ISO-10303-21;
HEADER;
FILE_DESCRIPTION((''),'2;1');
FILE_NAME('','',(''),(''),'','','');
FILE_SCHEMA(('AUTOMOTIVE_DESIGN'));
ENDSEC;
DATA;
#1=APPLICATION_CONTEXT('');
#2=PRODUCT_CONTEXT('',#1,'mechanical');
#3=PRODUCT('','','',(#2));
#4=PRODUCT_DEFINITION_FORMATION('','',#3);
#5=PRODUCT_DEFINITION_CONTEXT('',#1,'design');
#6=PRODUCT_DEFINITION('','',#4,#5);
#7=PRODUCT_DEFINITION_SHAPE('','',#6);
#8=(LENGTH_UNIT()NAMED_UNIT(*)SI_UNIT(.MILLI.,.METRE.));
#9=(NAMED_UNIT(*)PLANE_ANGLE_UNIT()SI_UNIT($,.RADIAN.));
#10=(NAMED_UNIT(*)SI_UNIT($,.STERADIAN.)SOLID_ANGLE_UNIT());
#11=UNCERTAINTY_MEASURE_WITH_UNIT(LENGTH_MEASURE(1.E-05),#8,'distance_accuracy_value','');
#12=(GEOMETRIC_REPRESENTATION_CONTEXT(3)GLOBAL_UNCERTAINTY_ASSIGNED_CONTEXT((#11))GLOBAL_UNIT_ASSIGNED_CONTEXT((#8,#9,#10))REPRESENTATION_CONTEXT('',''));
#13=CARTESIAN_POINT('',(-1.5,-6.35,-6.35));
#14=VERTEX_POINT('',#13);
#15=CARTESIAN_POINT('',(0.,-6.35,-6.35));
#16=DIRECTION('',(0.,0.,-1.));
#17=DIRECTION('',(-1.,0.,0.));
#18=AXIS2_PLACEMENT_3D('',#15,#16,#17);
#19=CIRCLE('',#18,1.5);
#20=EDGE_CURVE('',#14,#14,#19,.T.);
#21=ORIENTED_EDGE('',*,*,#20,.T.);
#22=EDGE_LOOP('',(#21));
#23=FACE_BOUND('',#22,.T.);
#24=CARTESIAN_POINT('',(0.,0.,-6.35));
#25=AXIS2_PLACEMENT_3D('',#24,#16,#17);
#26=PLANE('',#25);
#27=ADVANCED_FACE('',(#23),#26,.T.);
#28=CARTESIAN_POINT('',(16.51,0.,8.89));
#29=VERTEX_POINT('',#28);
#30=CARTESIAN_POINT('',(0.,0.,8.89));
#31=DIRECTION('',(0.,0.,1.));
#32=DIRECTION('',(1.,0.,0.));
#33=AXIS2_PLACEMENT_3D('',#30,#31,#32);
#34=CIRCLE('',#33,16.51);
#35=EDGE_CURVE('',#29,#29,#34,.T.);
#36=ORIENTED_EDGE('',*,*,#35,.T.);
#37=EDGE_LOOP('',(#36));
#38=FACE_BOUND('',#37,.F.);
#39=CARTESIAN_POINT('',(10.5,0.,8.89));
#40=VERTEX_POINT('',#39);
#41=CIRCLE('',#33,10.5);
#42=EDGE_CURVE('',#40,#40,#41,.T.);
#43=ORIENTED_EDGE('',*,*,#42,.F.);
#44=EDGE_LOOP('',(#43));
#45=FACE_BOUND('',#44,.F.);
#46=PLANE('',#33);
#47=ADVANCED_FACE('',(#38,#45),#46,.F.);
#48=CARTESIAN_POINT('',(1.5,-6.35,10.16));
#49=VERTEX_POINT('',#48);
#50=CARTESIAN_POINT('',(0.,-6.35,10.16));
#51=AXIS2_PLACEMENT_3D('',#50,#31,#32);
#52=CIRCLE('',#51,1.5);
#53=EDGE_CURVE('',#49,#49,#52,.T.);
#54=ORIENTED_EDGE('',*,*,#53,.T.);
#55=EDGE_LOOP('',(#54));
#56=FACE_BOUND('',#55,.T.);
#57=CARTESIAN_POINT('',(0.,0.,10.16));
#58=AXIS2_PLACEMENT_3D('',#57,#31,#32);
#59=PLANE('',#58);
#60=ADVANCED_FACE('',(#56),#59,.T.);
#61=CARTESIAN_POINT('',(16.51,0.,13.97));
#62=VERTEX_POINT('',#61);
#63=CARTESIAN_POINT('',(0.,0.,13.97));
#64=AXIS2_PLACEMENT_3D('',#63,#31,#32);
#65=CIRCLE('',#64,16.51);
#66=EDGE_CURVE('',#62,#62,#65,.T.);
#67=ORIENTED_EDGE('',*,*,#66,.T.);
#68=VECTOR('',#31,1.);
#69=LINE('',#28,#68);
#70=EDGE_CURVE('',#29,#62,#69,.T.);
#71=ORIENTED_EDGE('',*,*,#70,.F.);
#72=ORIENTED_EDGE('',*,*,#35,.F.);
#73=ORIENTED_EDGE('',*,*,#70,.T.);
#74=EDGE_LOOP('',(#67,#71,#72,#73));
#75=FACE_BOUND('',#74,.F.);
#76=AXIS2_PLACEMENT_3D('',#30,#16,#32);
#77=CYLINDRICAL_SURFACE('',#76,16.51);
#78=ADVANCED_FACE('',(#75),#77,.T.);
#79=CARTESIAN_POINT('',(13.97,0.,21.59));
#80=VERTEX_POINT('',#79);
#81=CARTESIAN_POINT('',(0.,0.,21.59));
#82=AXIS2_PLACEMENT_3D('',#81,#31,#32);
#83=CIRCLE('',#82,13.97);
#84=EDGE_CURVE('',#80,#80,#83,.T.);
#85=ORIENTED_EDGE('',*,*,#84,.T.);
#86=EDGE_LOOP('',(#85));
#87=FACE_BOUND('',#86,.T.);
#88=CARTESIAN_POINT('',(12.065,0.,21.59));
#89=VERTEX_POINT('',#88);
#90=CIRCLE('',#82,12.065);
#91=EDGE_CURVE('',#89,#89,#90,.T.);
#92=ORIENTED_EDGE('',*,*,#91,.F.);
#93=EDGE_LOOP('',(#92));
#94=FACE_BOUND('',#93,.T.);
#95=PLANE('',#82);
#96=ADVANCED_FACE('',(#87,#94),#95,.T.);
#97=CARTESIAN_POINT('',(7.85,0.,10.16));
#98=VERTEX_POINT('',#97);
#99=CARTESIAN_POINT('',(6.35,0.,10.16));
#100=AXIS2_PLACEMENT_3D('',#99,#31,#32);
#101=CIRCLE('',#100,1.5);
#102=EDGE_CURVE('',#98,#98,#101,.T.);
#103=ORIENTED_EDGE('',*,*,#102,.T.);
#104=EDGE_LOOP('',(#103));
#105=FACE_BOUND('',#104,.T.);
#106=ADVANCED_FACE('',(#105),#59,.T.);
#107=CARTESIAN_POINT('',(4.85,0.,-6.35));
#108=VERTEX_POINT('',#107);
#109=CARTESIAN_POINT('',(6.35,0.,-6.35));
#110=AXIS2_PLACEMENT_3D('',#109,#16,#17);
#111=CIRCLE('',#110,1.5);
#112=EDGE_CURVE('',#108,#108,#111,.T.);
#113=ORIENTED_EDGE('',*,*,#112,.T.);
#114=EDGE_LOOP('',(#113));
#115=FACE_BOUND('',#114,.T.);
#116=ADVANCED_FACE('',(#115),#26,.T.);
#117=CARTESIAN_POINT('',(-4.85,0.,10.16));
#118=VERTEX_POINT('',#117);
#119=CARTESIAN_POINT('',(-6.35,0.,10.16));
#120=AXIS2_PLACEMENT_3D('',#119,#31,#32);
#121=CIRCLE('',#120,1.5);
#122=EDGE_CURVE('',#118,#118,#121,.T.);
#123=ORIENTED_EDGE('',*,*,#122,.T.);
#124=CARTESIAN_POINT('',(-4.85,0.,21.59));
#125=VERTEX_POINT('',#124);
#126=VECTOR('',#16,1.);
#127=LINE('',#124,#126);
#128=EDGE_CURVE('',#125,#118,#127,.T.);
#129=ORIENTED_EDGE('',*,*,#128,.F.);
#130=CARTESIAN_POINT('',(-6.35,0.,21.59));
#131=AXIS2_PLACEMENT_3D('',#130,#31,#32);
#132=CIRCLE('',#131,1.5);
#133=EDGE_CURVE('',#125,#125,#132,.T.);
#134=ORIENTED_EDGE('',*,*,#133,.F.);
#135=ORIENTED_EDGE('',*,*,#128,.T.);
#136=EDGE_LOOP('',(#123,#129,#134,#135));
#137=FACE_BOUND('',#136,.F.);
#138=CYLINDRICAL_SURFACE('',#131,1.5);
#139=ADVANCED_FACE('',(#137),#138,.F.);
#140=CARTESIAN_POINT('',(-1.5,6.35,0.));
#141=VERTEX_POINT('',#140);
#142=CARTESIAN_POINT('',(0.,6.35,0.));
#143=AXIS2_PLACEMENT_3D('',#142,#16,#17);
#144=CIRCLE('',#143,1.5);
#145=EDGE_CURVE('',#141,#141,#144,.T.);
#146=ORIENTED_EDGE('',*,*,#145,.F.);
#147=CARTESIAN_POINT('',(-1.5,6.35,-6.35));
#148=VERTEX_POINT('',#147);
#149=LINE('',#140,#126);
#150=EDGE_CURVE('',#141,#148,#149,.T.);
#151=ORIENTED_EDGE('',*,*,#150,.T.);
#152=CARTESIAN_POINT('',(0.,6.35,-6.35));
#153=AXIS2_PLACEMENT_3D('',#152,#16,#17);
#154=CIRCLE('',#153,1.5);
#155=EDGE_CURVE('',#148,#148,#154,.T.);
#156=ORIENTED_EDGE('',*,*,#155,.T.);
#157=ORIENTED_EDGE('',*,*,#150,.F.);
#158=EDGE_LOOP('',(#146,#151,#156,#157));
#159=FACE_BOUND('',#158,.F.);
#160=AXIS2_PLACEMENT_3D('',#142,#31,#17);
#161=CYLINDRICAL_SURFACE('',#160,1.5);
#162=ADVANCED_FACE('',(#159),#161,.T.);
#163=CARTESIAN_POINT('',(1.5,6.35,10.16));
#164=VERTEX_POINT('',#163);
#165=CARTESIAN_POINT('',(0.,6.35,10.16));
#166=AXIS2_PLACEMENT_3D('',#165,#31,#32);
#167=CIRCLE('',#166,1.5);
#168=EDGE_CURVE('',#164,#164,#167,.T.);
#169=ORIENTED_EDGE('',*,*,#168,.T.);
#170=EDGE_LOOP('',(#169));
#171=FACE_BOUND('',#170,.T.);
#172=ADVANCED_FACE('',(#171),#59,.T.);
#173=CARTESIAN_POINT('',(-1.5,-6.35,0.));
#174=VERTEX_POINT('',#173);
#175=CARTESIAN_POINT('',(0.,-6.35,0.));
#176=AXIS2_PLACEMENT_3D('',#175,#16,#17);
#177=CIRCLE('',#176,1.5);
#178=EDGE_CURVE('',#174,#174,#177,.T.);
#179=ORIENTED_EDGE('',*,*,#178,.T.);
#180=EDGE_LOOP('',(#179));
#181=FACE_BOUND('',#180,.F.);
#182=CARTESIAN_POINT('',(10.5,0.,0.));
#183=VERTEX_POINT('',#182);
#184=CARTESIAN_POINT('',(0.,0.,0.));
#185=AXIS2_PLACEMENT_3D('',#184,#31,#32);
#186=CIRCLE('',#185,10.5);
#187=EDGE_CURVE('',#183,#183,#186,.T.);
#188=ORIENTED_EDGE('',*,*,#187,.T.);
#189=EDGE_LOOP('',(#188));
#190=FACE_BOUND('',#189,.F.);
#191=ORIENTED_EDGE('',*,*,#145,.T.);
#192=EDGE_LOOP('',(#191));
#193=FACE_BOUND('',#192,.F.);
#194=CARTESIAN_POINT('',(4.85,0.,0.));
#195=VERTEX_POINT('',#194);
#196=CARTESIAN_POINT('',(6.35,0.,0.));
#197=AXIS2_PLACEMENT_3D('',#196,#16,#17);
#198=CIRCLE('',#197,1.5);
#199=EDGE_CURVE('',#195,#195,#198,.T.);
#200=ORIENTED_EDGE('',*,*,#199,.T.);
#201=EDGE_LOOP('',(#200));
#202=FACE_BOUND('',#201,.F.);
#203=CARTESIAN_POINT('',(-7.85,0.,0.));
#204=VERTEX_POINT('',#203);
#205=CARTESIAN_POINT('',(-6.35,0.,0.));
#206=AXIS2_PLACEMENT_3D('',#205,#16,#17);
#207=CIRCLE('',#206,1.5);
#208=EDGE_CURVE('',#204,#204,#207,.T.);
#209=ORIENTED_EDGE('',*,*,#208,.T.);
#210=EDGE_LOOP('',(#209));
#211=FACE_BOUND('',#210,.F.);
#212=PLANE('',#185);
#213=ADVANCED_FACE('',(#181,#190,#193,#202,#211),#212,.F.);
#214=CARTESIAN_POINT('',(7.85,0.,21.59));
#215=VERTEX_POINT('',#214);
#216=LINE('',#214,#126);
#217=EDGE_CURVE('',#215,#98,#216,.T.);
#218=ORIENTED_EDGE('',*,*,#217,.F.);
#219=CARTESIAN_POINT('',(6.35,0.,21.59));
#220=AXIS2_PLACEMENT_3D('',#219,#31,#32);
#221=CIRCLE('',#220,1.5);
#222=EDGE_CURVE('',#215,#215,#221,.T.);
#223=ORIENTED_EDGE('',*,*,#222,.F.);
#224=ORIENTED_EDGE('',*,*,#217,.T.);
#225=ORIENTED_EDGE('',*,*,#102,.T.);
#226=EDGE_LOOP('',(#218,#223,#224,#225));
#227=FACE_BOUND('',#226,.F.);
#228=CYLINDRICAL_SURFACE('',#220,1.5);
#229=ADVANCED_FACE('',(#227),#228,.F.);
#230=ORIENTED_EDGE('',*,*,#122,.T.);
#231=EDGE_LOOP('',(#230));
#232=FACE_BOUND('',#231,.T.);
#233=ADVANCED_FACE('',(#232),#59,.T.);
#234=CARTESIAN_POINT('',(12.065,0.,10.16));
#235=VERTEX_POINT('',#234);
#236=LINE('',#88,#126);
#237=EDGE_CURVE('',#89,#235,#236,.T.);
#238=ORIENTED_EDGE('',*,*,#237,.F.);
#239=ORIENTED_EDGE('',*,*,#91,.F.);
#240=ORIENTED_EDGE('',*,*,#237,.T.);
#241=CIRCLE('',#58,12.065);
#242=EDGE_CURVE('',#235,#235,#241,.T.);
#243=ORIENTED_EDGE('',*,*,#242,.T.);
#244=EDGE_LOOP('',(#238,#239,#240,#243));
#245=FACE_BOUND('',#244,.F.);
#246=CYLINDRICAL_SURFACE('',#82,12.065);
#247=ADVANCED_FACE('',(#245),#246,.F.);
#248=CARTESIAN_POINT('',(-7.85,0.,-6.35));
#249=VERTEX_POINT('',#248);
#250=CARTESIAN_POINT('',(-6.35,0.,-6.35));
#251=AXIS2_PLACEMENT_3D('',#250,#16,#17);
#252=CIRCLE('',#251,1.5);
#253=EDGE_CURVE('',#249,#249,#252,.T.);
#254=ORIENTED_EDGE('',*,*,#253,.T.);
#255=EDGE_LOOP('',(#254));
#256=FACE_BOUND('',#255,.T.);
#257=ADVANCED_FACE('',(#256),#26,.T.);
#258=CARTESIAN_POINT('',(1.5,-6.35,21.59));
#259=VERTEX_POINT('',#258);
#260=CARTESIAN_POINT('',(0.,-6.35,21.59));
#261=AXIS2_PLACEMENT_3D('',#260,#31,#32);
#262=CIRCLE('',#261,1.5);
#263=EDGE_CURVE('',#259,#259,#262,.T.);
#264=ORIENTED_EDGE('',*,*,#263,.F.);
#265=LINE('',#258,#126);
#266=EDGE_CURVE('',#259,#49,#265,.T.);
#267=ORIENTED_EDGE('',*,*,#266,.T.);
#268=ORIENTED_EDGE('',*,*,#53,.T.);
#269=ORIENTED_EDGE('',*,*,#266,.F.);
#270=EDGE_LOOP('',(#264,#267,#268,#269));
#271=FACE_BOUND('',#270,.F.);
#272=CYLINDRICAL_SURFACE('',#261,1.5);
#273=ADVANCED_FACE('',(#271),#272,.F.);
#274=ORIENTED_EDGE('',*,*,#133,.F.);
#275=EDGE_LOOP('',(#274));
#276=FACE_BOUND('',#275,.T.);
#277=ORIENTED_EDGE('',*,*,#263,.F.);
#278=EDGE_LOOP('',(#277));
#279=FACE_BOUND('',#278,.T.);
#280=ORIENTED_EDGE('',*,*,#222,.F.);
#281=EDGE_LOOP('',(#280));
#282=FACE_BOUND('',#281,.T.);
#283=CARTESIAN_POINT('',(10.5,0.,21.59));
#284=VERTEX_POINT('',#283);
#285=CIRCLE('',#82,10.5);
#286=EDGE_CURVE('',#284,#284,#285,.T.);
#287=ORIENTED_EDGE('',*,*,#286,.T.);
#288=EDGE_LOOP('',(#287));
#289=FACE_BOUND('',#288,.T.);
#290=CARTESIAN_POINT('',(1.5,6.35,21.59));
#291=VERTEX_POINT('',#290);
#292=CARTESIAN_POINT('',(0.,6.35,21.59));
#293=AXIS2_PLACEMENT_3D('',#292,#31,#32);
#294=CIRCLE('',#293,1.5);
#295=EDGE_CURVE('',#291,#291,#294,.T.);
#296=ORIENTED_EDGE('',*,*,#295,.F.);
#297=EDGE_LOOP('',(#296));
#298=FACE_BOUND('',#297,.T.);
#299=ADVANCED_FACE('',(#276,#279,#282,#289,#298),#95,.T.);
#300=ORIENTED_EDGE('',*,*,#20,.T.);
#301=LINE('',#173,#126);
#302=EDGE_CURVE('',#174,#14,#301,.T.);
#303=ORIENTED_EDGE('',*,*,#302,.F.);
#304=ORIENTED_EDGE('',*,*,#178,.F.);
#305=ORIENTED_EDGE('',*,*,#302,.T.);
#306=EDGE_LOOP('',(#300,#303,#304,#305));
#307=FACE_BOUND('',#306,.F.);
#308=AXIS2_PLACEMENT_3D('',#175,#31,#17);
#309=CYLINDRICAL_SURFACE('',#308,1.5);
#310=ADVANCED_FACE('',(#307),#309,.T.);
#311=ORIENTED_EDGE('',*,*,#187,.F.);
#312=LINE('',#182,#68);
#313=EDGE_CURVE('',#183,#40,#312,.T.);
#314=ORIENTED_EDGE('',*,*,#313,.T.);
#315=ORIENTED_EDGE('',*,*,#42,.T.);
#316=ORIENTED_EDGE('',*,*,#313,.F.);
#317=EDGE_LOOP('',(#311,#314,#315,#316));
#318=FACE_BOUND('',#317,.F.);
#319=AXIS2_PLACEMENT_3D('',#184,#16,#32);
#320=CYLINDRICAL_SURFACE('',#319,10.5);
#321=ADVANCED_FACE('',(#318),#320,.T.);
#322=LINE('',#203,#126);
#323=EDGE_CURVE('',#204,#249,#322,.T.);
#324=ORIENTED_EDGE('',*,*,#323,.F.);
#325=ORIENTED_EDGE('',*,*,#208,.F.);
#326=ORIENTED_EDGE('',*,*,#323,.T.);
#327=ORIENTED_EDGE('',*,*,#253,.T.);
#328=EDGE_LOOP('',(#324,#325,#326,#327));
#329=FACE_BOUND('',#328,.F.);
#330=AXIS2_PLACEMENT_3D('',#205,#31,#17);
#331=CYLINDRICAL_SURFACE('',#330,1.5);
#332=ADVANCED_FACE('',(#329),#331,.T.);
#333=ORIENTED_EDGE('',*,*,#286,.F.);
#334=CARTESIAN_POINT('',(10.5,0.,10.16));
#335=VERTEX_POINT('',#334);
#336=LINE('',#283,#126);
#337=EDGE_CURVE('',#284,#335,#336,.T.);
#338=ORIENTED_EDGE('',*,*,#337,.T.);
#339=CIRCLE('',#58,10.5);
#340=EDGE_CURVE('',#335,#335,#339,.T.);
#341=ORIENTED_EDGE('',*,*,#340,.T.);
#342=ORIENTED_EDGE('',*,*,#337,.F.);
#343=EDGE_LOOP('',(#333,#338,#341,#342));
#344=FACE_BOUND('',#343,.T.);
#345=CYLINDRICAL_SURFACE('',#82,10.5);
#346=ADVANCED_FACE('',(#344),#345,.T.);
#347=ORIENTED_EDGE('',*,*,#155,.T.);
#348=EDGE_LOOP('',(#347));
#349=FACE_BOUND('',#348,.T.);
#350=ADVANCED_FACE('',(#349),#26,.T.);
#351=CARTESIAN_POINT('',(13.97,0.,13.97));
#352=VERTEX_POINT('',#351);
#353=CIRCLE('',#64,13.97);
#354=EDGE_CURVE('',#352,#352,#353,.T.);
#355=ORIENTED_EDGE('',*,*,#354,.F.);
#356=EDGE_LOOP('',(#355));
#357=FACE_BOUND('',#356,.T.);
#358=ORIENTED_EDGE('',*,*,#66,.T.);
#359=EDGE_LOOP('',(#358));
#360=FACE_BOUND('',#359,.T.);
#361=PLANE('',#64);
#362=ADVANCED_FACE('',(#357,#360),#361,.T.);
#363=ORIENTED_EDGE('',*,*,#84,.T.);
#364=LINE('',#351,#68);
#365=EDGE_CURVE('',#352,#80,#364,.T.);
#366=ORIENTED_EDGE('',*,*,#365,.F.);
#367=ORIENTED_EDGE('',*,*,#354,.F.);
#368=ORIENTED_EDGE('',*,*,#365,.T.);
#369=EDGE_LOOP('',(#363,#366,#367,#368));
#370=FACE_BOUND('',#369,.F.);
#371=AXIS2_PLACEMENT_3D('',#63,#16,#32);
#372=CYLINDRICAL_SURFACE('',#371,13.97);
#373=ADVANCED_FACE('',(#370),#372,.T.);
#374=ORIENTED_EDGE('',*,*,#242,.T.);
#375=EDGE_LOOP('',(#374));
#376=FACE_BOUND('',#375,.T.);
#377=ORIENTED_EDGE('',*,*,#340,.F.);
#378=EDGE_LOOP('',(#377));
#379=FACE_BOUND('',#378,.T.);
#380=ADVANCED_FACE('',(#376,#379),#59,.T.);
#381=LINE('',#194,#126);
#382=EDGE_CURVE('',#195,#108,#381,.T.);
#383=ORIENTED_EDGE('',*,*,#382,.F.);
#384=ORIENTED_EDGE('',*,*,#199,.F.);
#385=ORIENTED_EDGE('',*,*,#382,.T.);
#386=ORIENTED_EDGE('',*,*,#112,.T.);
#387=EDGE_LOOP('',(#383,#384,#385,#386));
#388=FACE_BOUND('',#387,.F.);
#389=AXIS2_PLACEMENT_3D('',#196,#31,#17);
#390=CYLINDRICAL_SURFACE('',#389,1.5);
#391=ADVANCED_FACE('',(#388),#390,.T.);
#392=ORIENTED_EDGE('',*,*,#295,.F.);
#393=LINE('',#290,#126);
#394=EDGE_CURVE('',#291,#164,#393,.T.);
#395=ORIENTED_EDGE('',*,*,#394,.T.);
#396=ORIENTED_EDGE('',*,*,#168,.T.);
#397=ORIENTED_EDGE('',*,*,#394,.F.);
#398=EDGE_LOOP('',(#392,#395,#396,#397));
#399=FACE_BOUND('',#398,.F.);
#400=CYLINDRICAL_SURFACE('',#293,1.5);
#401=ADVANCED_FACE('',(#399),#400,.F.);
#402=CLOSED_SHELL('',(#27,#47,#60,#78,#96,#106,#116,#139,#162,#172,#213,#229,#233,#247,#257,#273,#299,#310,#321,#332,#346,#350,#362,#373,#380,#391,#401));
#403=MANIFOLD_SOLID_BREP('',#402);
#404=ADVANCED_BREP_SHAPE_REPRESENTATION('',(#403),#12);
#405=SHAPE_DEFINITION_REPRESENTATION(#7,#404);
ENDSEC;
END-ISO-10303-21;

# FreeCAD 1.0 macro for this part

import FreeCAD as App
import Part
import Sketcher

V = App.Vector
Q = App.Units.Quantity

doc = App.newDocument("Part")
body = doc.addObject("PartDesign::Body", "Body")

sketch1 = body.newObject("Sketcher::SketchObject", "Sketch")
sketch1.AttachmentSupport = (doc.getObject("XY_Plane"), [""])
sketch1.MapMode = "FlatFace"
sketch1.addGeometry(Part.Circle(V(0, 0, 0), V(0, 0, 1), 10), False)
sketch1.addConstraint(Sketcher.Constraint("Coincident", 0, 3, -1, 1))
sketch1.addConstraint(Sketcher.Constraint("Diameter", 0, 21.0))
pad1 = body.newObject("PartDesign::Pad", "Pad")
pad1.Profile = sketch1
pad1.Length = Q("0.35 in")

sketch2 = body.newObject("Sketcher::SketchObject", "Sketch001")
sketch2.AttachmentSupport = (doc.getObject("XY_Plane"), [""])
sketch2.MapMode = "FlatFace"
sketch2.AttachmentOffset = App.Placement(V(0, 0, 0.35 * 25.4), App.Rotation())
sketch2.addGeometry(Part.Circle(V(0, 0, 0), V(0, 0, 1), 17), False)
sketch2.addConstraint(Sketcher.Constraint("Coincident", 0, 3, -1, 1))
sketch2.addConstraint(Sketcher.Constraint("Diameter", 0, Q("1.3 in")))
pad2 = body.newObject("PartDesign::Pad", "Pad001")
pad2.Profile = sketch2
pad2.Length = Q("0.2 in")

sketch3 = body.newObject("Sketcher::SketchObject", "Sketch002")
sketch3.AttachmentSupport = (doc.getObject("XY_Plane"), [""])
sketch3.MapMode = "FlatFace"
sketch3.AttachmentOffset = App.Placement(V(0, 0, 0.55 * 25.4), App.Rotation())
sketch3.addGeometry(Part.Circle(V(0, 0, 0), V(0, 0, 1), 14), False)
sketch3.addConstraint(Sketcher.Constraint("Coincident", 0, 3, -1, 1))
sketch3.addConstraint(Sketcher.Constraint("Diameter", 0, Q("1.1 in")))
pad3 = body.newObject("PartDesign::Pad", "Pad002")
pad3.Profile = sketch3
pad3.Length = Q("0.3 in")

sketch4 = body.newObject("Sketcher::SketchObject", "Sketch003")
sketch4.AttachmentSupport = (doc.getObject("XY_Plane"), [""])
sketch4.MapMode = "FlatFace"
sketch4.AttachmentOffset = App.Placement(V(0, 0, 0.85 * 25.4), App.Rotation())
sketch4.addGeometry(Part.Circle(V(0, 6.3, 0), V(0, 0, 1), 1.5), False)
sketch4.addGeometry(Part.Circle(V(-6.3, 0, 0), V(0, 0, 1), 1.5), False)
sketch4.addGeometry(Part.Circle(V(0, -6.3, 0), V(0, 0, 1), 1.5), False)
sketch4.addGeometry(Part.Circle(V(6.3, 0, 0), V(0, 0, 1), 1.5), False)
sketch4.addConstraint(Sketcher.Constraint("Equal", 0, 1))
sketch4.addConstraint(Sketcher.Constraint("Equal", 1, 2))
sketch4.addConstraint(Sketcher.Constraint("Equal", 2, 3))
sketch4.addConstraint(Sketcher.Constraint("Symmetric", 0, 3, 2, 3, -1, 1))
sketch4.addConstraint(Sketcher.Constraint("Symmetric", 1, 3, 3, 3, -1, 1))
sketch4.addConstraint(Sketcher.Constraint("PointOnObject", 0, 3, -2))
sketch4.addConstraint(Sketcher.Constraint("PointOnObject", 1, 3, -1))
sketch4.addConstraint(Sketcher.Constraint("Diameter", 0, Q("0.1181 in")))
sketch4.addConstraint(Sketcher.Constraint("DistanceY", 2, 3, 0, 3, Q("0.5 in")))
sketch4.addConstraint(Sketcher.Constraint("DistanceX", 1, 3, 3, 3, Q("0.5 in")))
pocket1 = body.newObject("PartDesign::Pocket", "Pocket")
pocket1.Profile = sketch4
pocket1.Length = Q("0.45 in")

sketch5 = body.newObject("Sketcher::SketchObject", "Sketch004")
sketch5.AttachmentSupport = (doc.getObject("XY_Plane"), [""])
sketch5.MapMode = "FlatFace"
sketch5.AttachmentOffset = App.Placement(V(0, 0, 0.85 * 25.4), App.Rotation())
sketch5.addGeometry(Part.Circle(V(0, 0, 0), V(0, 0, 1), 12), False)
sketch5.addGeometry(Part.Circle(V(0, 0, 0), V(0, 0, 1), 10), False)
sketch5.addConstraint(Sketcher.Constraint("Coincident", 0, 3, -1, 1))
sketch5.addConstraint(Sketcher.Constraint("Coincident", 1, 3, -1, 1))
sketch5.addConstraint(Sketcher.Constraint("Diameter", 0, Q("0.95 in")))
sketch5.addConstraint(Sketcher.Constraint("Diameter", 1, 21.0))
pocket2 = body.newObject("PartDesign::Pocket", "Pocket001")
pocket2.Profile = sketch5
pocket2.Length = Q("0.45 in")

sketch6 = body.newObject("Sketcher::SketchObject", "Sketch005")
sketch6.AttachmentSupport = (doc.getObject("XY_Plane"), [""])
sketch6.MapMode = "FlatFace"
sketch6.addGeometry(Part.Circle(V(0, 6.3, 0), V(0, 0, 1), 1.5), False)
sketch6.addGeometry(Part.Circle(V(6.3, 0, 0), V(0, 0, 1), 1.5), False)
sketch6.addGeometry(Part.Circle(V(0, -6.3, 0), V(0, 0, 1), 1.5), False)
sketch6.addGeometry(Part.Circle(V(-6.3, 0, 0), V(0, 0, 1), 1.5), False)
sketch6.addConstraint(Sketcher.Constraint("Equal", 0, 1))
sketch6.addConstraint(Sketcher.Constraint("Equal", 1, 2))
sketch6.addConstraint(Sketcher.Constraint("Equal", 2, 3))
sketch6.addConstraint(Sketcher.Constraint("Symmetric", 0, 3, 2, 3, -1, 1))
sketch6.addConstraint(Sketcher.Constraint("Symmetric", 1, 3, 3, 3, -1, 1))
sketch6.addConstraint(Sketcher.Constraint("PointOnObject", 0, 3, -2))
sketch6.addConstraint(Sketcher.Constraint("PointOnObject", 1, 3, -1))
sketch6.addConstraint(Sketcher.Constraint("Diameter", 0, Q("0.1181 in")))
sketch6.addConstraint(Sketcher.Constraint("DistanceY", 2, 3, 0, 3, Q("0.5 in")))
sketch6.addConstraint(Sketcher.Constraint("DistanceX", 3, 3, 1, 3, Q("0.5 in")))
pad4 = body.newObject("PartDesign::Pad", "Pad003")
pad4.Profile = sketch6
pad4.Length = Q("0.25 in")
pad4.Reversed = True

doc.recompute()
